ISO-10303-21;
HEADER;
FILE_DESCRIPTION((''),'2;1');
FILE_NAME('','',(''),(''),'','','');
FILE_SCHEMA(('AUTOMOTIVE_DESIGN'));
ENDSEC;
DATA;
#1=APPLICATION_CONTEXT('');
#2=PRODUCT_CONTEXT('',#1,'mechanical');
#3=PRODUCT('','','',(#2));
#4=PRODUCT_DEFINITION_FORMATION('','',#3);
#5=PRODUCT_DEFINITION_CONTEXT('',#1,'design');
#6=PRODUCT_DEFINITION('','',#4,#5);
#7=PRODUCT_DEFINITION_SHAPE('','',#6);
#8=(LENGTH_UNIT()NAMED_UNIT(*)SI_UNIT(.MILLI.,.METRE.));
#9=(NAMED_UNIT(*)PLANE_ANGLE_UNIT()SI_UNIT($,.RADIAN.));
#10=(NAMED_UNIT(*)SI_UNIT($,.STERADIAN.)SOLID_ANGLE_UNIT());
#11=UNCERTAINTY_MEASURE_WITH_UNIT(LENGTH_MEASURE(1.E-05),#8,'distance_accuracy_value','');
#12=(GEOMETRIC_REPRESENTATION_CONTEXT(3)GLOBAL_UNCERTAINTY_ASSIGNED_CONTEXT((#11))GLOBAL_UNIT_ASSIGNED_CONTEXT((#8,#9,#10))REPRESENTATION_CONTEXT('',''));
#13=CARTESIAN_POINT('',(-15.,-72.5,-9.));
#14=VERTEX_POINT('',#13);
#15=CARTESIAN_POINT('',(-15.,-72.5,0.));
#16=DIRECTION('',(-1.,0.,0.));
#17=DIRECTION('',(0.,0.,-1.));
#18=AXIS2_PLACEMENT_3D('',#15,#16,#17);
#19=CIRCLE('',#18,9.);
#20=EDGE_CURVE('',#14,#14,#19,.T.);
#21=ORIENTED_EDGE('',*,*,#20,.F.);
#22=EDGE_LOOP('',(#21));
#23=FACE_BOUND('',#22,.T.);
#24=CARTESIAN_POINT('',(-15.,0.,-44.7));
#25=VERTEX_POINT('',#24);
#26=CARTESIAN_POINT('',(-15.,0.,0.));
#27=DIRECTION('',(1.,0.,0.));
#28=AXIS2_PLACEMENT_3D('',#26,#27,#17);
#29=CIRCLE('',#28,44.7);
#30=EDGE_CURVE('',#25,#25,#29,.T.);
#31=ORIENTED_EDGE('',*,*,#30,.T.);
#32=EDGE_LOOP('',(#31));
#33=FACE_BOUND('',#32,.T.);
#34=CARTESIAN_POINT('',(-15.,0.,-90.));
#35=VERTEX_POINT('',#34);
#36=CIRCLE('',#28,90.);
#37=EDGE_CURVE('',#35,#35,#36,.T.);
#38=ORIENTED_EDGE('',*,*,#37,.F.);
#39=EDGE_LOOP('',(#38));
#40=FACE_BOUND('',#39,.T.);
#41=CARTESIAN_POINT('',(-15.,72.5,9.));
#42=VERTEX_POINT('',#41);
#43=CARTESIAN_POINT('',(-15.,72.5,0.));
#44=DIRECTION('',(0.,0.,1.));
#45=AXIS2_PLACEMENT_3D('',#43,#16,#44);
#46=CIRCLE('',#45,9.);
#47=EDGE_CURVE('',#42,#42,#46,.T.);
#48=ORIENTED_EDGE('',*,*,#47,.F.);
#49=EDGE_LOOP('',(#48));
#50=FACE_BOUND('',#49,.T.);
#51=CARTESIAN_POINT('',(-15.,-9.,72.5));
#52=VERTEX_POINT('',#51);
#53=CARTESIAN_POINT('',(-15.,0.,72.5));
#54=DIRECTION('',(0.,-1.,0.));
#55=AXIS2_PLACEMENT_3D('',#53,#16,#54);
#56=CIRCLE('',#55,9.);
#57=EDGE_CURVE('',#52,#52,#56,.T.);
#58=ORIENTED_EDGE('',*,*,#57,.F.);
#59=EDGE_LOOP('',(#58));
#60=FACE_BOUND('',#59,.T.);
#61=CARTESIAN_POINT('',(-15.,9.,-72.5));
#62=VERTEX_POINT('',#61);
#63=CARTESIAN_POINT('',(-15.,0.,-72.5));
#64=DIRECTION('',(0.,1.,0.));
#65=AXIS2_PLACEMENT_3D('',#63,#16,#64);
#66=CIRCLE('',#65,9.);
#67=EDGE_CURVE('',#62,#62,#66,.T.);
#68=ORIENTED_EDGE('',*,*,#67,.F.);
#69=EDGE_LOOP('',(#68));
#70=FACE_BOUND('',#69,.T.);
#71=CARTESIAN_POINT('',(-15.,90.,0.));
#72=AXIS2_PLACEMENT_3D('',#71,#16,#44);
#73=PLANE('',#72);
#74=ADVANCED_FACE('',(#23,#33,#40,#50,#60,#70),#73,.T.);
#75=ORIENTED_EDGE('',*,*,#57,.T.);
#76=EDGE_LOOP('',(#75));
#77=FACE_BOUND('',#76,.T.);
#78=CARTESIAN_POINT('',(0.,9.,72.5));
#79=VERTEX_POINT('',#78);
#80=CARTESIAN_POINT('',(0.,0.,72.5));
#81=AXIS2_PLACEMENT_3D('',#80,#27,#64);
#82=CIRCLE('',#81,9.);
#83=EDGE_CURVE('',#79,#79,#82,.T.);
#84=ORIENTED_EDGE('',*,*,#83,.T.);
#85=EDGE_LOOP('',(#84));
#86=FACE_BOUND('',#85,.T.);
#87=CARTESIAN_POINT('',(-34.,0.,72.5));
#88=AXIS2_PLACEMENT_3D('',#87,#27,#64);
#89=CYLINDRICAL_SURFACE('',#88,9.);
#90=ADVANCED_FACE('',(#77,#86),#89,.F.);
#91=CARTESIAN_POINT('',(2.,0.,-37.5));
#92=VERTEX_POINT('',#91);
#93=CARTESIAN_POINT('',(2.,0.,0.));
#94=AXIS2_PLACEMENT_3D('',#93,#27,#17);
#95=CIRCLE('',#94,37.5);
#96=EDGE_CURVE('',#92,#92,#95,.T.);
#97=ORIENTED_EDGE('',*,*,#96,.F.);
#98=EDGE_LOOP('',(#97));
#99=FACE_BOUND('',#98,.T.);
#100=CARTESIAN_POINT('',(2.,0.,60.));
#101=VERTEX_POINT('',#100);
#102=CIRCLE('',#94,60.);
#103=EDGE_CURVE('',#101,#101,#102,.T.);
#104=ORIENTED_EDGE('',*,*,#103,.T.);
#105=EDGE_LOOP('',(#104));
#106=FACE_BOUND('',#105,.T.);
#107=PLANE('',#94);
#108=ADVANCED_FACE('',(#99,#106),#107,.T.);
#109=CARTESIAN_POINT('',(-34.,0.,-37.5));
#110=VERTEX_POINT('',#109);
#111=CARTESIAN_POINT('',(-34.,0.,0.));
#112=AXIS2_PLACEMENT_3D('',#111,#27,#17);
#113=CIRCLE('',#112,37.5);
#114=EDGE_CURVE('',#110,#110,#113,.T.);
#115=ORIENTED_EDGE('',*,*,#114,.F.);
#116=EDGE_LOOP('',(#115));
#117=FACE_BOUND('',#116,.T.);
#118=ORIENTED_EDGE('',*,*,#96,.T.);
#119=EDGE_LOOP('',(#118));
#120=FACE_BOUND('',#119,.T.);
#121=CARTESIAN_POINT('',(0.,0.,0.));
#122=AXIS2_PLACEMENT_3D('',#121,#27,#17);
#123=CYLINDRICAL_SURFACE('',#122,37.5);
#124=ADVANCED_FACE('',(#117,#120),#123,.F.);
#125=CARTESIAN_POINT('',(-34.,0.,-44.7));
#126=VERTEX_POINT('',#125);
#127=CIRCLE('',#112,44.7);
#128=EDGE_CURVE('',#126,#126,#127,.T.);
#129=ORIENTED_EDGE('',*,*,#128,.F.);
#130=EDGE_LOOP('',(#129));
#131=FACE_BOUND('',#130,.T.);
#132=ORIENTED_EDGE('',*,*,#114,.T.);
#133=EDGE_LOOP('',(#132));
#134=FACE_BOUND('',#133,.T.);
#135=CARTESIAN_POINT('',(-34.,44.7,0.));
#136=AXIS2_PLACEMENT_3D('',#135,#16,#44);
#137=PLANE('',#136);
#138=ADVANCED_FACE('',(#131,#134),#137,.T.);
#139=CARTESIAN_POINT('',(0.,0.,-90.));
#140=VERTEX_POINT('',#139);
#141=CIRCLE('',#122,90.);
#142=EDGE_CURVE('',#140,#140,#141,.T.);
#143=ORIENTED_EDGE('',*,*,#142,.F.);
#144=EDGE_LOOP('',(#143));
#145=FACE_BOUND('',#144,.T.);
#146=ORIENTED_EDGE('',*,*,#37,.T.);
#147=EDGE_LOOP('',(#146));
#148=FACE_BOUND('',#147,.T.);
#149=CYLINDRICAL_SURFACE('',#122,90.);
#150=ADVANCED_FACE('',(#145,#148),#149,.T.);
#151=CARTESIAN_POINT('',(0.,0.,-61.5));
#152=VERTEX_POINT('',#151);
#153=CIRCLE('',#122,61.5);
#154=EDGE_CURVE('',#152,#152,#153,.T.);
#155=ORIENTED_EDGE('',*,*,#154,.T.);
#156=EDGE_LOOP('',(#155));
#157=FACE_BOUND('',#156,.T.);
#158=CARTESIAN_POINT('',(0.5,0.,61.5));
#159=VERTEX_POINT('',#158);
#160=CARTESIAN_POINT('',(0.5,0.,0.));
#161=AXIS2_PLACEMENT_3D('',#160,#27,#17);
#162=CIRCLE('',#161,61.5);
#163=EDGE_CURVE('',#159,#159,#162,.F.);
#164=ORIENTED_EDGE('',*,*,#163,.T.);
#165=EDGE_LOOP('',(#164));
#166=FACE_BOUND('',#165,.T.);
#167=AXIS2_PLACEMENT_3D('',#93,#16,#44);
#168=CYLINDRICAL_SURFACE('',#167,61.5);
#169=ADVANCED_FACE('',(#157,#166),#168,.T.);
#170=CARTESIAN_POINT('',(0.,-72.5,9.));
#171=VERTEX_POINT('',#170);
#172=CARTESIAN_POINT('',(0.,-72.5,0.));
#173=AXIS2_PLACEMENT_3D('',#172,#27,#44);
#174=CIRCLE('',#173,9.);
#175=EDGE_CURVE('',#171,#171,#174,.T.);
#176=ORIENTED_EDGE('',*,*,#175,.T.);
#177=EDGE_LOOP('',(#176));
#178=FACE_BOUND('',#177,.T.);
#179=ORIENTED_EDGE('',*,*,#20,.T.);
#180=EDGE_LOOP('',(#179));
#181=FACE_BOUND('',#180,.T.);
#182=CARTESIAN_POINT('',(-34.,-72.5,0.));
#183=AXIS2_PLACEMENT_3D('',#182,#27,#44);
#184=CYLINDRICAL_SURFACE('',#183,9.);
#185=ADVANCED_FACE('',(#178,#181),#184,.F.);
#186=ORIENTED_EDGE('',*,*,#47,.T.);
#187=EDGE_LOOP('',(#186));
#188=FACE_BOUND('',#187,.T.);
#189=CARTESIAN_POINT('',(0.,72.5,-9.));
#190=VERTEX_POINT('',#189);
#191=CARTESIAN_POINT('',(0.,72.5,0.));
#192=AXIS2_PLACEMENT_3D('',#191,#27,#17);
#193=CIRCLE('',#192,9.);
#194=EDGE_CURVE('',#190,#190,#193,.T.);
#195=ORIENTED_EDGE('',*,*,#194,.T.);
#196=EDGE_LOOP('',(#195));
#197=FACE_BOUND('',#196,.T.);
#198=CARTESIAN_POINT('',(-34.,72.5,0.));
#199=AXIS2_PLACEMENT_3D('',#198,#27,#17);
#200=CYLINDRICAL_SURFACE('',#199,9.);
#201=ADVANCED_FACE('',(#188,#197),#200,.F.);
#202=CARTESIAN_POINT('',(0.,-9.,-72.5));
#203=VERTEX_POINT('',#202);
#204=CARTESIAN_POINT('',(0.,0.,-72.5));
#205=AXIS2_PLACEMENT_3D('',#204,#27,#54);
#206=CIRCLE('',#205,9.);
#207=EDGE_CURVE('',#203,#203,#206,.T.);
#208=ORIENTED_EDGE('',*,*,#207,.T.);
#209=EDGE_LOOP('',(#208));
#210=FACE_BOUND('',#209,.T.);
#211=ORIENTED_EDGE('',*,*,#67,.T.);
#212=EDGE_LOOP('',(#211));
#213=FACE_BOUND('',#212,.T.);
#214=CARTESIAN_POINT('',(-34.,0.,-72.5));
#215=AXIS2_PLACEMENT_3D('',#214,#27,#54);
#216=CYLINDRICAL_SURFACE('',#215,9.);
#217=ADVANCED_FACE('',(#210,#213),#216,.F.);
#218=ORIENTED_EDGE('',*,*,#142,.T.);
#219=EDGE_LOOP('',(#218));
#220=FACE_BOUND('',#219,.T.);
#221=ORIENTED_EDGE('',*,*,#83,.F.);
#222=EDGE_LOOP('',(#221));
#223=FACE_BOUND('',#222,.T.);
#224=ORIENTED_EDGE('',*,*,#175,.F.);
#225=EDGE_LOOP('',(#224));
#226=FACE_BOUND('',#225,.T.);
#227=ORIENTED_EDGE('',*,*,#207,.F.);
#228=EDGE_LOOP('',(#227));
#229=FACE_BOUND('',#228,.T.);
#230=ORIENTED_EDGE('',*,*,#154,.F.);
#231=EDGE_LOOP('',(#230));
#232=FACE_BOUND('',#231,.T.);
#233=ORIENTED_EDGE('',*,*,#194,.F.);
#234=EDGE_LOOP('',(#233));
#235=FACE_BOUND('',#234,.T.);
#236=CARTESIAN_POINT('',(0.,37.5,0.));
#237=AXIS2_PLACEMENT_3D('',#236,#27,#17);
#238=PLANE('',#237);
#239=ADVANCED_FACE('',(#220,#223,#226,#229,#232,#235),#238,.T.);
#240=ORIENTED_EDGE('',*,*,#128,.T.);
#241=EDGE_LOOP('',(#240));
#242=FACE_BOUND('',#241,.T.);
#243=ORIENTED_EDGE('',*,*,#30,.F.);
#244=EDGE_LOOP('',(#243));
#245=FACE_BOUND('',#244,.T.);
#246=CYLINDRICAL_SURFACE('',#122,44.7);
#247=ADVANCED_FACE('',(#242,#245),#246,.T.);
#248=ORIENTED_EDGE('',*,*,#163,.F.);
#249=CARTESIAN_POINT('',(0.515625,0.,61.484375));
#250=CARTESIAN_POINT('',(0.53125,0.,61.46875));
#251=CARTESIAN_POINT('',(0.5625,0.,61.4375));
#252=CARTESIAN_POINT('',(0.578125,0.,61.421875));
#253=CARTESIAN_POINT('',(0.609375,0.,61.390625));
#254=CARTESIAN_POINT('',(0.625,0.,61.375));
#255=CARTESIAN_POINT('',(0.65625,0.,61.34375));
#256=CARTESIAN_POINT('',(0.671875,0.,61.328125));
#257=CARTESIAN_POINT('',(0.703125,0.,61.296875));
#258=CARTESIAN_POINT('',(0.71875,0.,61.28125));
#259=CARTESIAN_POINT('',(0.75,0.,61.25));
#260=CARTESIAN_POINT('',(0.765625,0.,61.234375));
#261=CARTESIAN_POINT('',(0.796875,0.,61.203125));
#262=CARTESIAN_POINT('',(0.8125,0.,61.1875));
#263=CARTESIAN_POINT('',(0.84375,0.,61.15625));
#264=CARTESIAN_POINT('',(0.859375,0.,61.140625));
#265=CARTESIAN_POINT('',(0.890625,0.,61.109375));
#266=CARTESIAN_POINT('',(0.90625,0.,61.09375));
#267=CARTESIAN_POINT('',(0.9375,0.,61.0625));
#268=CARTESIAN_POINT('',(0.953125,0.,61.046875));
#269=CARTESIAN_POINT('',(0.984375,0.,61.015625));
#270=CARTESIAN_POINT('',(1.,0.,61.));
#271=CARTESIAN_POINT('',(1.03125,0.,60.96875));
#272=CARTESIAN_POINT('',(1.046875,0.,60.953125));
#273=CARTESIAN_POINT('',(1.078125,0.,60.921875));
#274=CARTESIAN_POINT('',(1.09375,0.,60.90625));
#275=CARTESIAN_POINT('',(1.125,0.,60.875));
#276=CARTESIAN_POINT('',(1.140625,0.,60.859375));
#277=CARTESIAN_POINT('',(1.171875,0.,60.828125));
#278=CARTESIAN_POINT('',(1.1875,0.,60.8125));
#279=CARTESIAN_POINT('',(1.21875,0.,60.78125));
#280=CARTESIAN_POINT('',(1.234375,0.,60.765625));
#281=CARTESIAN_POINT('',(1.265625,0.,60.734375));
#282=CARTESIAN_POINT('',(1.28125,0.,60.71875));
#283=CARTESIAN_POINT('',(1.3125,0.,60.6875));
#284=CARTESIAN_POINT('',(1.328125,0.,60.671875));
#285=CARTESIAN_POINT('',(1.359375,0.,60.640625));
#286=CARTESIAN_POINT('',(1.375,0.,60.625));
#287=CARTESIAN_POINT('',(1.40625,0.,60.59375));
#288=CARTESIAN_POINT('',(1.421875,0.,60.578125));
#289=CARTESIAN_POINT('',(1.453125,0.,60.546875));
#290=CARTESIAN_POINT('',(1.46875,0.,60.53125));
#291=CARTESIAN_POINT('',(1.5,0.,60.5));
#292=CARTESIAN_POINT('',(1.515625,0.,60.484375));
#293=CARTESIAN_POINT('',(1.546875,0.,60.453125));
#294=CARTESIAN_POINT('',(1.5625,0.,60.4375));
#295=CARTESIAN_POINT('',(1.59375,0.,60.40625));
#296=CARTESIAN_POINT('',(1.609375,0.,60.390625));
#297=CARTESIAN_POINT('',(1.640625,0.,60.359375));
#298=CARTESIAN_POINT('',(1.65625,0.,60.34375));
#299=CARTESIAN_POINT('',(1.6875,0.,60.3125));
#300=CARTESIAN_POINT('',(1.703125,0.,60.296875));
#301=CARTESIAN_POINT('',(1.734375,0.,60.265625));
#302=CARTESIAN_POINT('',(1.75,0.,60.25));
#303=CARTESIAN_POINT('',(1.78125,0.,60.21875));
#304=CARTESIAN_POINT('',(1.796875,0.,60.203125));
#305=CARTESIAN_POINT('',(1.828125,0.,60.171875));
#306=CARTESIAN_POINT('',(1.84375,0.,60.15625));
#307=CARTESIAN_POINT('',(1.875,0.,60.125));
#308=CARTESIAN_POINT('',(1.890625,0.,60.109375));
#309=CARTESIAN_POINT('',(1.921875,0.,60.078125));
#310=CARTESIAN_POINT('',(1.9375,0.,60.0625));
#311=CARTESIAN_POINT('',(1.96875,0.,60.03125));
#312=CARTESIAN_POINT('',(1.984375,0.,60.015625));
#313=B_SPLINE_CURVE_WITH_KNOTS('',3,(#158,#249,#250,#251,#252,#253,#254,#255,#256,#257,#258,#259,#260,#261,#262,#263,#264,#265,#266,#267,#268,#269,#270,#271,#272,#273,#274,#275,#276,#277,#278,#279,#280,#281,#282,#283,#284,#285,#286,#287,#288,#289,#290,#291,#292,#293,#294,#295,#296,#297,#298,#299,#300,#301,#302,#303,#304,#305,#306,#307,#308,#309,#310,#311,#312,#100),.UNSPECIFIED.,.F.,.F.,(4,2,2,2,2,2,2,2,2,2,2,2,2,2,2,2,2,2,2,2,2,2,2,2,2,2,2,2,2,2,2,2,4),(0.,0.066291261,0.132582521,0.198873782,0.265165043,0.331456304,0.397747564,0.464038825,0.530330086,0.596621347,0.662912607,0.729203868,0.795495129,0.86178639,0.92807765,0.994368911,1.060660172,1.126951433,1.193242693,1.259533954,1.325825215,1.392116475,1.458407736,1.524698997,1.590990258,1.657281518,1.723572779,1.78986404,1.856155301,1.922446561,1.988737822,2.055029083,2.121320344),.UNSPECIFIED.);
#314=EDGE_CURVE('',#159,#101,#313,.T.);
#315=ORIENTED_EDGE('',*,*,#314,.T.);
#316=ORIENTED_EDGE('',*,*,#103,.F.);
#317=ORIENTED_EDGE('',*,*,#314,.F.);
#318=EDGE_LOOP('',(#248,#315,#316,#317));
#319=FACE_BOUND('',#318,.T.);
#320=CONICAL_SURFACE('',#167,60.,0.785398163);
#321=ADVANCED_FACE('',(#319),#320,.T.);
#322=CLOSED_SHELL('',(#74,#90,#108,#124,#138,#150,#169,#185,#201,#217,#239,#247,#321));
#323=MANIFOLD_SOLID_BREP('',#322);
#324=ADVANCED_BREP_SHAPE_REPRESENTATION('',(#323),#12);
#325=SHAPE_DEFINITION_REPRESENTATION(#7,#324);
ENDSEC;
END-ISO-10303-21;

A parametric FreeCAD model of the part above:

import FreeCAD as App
import Part
import Sketcher


def edges_at(feature, points):
    """Names of the edges that pass closest to the given points."""
    edges = feature.Shape.Edges
    near = lambda p: min(range(len(edges)), key=lambda i: edges[i].distToShape(Part.Vertex(*p))[0])
    return sorted({f"Edge{near(p) + 1}" for p in points})

doc = App.newDocument("Part")
body = doc.addObject("PartDesign::Body", "Body")

sketch1 = doc.addObject("Sketcher::SketchObject", "Sketch")
body.addObject(sketch1)
sketch1.AttachmentSupport = (doc.XY_Plane, [""])
sketch1.MapMode = "FlatFace"
sketch1.addGeometry([
    Part.LineSegment(App.Vector(-34, 38, 0), App.Vector(0, 38, 0)),
    Part.LineSegment(App.Vector(0, 38, 0), App.Vector(0, 90, 0)),
    Part.LineSegment(App.Vector(0, 90, 0), App.Vector(-15, 90, 0)),
    Part.LineSegment(App.Vector(-15, 90, 0), App.Vector(-15, 45, 0)),
    Part.LineSegment(App.Vector(-15, 45, 0), App.Vector(-34, 45, 0)),
    Part.LineSegment(App.Vector(-34, 45, 0), App.Vector(-34, 38, 0)),
], False)
sketch1.addConstraint([
    Sketcher.Constraint("Coincident", 0, 2, 1, 1),
    Sketcher.Constraint("Coincident", 1, 2, 2, 1),
    Sketcher.Constraint("Coincident", 2, 2, 3, 1),
    Sketcher.Constraint("Coincident", 3, 2, 4, 1),
    Sketcher.Constraint("Coincident", 4, 2, 5, 1),
    Sketcher.Constraint("Coincident", 5, 2, 0, 1),
    Sketcher.Constraint("Horizontal", 0),
    Sketcher.Constraint("Vertical", 1),
    Sketcher.Constraint("Horizontal", 2),
    Sketcher.Constraint("Vertical", 3),
    Sketcher.Constraint("Horizontal", 4),
    Sketcher.Constraint("Vertical", 5),
    Sketcher.Constraint("PointOnObject", 0, 2, -2),
    Sketcher.Constraint("DistanceX", 0, 1, 0, 2, 34.0),
    Sketcher.Constraint("DistanceX", 2, 2, 2, 1, 15.0),
    Sketcher.Constraint("DistanceY", 1, 1, 1, 2, 52.5),
    Sketcher.Constraint("DistanceY", 3, 2, 3, 1, 45.3),
    Sketcher.Constraint("DistanceY", -1, 1, 1, 2, 90.0),
])
revolution = doc.addObject("PartDesign::Revolution", "Revolution")
body.addObject(revolution)
revolution.Profile = sketch1
revolution.ReferenceAxis = (sketch1, ["H_Axis"])
revolution.Angle = 360

sketch2 = doc.addObject("Sketcher::SketchObject", "Sketch001")
body.addObject(sketch2)
sketch2.AttachmentSupport = (doc.YZ_Plane, [""])
sketch2.MapMode = "FlatFace"
sketch2.addGeometry(Part.Circle(App.Vector(72, 0, 0), App.Vector(0, 0, 1), 9), False)
sketch2.addConstraint([
    Sketcher.Constraint("PointOnObject", 0, 3, -1),
    Sketcher.Constraint("Diameter", 0, 18.0),
    Sketcher.Constraint("DistanceX", -1, 1, 0, 3, 72.5),
])
pocket1 = doc.addObject("PartDesign::Pocket", "Pocket")
body.addObject(pocket1)
pocket1.Profile = sketch2
pocket1.Type = "ThroughAll"
doc.recompute()

polarpattern = doc.addObject("PartDesign::PolarPattern", "PolarPattern")
body.addObject(polarpattern)
polarpattern.Originals = [pocket1]
polarpattern.Axis = (doc.X_Axis, [""])
polarpattern.Angle = 360
polarpattern.Occurrences = 4
body.Tip = polarpattern

sketch3 = doc.addObject("Sketcher::SketchObject", "Sketch002")
body.addObject(sketch3)
sketch3.AttachmentSupport = (doc.YZ_Plane, [""])
sketch3.MapMode = "FlatFace"
sketch3.AttachmentOffset = App.Placement(App.Vector(0, 0, 2), App.Rotation())
sketch3.addGeometry([
    Part.Circle(App.Vector(0, 0, 0), App.Vector(0, 0, 1), 62),
    Part.Circle(App.Vector(0, 0, 0), App.Vector(0, 0, 1), 38),
], False)
sketch3.addConstraint([
    Sketcher.Constraint("Coincident", 0, 3, -1, 1),
    Sketcher.Constraint("Coincident", 1, 3, -1, 1),
    Sketcher.Constraint("Diameter", 0, 123.0),
    Sketcher.Constraint("Diameter", 1, 75.0),
])
pad1 = doc.addObject("PartDesign::Pad", "Pad")
body.addObject(pad1)
pad1.Profile = sketch3
pad1.Length = 2
pad1.Reversed = True
doc.recompute()

chamfer = doc.addObject("PartDesign::Chamfer", "Chamfer")
body.addObject(chamfer)
chamfer.Base = (pad1, edges_at(pad1, [(2, 0, 61.5)]))
chamfer.Size = 1.5

doc.recompute()
